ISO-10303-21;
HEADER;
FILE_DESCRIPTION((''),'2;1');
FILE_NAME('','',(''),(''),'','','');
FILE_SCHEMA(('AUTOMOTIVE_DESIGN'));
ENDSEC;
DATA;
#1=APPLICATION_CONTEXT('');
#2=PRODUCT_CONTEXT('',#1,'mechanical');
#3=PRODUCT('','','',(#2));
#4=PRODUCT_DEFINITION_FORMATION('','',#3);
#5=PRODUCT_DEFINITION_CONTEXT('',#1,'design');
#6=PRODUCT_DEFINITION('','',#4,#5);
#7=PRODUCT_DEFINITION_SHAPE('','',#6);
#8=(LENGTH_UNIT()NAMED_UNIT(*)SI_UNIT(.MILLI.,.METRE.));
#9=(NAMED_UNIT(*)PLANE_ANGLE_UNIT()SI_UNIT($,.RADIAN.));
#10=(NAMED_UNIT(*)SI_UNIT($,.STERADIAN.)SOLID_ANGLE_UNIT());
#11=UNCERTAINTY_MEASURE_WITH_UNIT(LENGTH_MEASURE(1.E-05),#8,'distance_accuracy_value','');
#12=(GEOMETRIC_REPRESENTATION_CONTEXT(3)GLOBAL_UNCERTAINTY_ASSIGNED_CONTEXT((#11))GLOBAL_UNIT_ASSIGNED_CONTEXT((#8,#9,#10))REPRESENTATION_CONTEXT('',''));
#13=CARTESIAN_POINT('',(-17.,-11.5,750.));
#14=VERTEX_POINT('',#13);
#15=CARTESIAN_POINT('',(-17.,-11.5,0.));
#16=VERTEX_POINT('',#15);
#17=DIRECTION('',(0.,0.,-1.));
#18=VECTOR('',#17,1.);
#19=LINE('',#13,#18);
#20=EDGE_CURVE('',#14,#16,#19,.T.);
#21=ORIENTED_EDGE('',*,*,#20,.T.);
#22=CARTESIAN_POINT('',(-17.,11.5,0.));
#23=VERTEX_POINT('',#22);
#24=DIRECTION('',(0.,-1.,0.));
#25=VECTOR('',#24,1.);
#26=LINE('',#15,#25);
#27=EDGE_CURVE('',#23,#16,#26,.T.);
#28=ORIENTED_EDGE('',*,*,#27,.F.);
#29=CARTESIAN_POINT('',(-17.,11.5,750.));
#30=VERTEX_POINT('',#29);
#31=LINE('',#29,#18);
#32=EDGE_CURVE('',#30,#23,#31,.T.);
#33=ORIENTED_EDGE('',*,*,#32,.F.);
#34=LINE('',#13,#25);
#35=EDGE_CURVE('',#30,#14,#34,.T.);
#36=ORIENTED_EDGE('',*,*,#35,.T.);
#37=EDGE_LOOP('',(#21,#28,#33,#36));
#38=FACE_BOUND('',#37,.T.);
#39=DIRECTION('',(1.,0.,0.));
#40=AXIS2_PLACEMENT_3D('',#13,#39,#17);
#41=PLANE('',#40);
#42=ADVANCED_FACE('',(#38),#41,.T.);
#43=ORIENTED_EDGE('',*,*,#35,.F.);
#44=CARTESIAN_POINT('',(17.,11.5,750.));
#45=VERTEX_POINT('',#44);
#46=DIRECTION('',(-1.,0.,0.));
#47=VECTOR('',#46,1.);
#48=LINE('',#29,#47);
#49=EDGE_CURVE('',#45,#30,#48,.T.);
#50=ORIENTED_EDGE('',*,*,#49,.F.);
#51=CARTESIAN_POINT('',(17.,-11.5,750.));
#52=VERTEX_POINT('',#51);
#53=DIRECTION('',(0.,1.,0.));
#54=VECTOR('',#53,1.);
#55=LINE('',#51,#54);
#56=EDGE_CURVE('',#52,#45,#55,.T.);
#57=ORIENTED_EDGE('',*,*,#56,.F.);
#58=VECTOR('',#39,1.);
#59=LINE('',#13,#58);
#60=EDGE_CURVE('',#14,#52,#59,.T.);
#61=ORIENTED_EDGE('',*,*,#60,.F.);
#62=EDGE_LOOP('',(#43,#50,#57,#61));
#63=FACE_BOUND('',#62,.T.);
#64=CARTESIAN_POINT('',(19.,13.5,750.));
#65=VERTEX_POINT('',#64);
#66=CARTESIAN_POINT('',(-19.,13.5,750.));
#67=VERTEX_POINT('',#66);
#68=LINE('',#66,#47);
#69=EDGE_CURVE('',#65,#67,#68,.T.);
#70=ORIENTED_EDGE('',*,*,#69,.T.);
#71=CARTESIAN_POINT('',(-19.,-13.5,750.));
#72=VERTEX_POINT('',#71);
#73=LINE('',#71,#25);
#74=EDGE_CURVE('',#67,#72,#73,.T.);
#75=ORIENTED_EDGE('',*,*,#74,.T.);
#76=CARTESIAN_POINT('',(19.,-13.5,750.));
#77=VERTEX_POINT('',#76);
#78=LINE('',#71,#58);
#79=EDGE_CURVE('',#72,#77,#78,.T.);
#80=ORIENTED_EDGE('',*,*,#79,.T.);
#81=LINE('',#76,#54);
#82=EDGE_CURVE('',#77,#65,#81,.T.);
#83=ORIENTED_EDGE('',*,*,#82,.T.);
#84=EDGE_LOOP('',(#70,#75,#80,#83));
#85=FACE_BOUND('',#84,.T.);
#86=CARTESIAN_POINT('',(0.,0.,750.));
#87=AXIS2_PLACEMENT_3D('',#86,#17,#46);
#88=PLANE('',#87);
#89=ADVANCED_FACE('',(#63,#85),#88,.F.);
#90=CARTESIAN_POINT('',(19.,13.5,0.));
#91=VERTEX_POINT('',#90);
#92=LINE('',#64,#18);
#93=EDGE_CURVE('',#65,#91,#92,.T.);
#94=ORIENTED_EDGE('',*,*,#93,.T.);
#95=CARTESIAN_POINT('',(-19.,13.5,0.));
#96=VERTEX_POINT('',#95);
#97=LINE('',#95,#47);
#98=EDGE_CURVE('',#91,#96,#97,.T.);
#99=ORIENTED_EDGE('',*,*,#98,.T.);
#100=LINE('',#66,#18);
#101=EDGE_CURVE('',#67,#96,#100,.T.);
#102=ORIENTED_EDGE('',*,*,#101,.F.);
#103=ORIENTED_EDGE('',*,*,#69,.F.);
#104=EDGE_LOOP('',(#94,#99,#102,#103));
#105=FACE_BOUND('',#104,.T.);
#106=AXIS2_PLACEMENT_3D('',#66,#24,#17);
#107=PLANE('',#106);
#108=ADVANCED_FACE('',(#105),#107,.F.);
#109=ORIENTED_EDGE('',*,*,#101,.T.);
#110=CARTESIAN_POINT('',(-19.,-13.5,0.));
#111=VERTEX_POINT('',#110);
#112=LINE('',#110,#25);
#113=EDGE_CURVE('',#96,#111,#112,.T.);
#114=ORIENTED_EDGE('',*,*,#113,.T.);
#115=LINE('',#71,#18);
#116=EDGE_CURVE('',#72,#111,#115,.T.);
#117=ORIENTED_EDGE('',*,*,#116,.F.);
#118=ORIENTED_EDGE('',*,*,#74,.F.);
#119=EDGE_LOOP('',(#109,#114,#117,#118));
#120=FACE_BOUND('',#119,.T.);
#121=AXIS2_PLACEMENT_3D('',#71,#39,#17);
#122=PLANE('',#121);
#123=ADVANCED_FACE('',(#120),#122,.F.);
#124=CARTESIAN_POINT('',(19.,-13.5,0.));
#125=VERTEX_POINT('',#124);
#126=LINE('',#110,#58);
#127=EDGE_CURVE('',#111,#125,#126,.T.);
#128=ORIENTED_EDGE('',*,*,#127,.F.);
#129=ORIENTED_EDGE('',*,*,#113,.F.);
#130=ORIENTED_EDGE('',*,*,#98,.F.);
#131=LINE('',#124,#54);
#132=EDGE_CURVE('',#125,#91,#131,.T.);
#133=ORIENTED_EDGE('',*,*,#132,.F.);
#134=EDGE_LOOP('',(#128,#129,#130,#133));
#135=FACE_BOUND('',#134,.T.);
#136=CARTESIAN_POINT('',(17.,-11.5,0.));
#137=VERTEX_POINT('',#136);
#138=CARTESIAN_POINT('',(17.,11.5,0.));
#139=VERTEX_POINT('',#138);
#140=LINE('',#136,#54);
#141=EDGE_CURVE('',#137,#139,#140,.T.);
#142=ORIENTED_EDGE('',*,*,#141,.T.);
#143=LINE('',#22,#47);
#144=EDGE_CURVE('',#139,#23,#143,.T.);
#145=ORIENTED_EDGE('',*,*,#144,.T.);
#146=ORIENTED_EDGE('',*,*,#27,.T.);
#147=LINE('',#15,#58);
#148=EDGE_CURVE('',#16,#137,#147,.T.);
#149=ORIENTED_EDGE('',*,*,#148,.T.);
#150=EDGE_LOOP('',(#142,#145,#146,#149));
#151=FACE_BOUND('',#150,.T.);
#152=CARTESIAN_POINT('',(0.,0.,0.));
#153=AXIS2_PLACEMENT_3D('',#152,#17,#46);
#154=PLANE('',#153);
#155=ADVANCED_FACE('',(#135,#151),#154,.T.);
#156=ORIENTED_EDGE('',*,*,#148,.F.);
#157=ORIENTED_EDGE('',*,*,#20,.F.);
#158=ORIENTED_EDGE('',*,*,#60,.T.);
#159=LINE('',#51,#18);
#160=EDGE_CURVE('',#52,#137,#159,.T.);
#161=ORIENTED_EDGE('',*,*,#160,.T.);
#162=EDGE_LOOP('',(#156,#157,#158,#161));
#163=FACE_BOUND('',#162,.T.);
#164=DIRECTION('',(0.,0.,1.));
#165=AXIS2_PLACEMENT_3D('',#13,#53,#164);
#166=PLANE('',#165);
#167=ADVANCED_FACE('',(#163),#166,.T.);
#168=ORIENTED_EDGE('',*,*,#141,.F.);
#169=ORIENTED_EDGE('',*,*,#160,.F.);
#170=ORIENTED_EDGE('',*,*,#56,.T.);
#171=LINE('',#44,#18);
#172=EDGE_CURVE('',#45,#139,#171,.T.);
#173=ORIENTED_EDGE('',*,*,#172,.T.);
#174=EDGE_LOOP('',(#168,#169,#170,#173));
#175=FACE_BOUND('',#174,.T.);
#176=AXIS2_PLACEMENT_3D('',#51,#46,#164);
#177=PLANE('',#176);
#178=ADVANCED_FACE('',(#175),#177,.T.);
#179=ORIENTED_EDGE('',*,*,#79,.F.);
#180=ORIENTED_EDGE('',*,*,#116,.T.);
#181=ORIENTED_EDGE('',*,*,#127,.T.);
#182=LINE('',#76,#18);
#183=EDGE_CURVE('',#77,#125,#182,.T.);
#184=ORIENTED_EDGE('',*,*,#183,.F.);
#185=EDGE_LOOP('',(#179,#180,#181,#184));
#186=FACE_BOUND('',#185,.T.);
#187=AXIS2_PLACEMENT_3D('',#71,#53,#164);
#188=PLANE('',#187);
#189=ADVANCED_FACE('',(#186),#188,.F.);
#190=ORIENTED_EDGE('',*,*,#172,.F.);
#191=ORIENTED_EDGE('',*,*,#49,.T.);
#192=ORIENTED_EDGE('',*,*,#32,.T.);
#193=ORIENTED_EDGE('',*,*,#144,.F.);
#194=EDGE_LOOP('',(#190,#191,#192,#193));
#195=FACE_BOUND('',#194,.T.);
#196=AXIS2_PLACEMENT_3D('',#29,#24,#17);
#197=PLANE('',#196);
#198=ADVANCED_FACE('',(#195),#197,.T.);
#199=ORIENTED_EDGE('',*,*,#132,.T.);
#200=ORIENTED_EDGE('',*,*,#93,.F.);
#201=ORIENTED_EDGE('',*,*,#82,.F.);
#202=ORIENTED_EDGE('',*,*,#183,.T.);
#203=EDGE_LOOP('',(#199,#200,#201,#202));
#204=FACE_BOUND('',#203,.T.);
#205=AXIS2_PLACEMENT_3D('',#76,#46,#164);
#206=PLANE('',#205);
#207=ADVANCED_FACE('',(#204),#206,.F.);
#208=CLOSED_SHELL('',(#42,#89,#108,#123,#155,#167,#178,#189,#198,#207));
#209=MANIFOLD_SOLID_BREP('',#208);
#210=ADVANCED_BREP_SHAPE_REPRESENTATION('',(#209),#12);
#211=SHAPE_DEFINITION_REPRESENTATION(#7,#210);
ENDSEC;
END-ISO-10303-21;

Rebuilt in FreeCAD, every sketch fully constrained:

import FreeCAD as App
import Part
import Sketcher

doc = App.newDocument("Part")
body = doc.addObject("PartDesign::Body", "Body")

sketch1 = body.newObject("Sketcher::SketchObject", "Sketch")
sketch1.AttachmentSupport = (doc.getObject("XY_Plane"), [""])
sketch1.MapMode = "FlatFace"
sketch1.addGeometry([
    Part.LineSegment(App.Vector(-19, 14, 0), App.Vector(-19, -14, 0)),
    Part.LineSegment(App.Vector(-19, -14, 0), App.Vector(19, -14, 0)),
    Part.LineSegment(App.Vector(19, -14, 0), App.Vector(19, 14, 0)),
    Part.LineSegment(App.Vector(19, 14, 0), App.Vector(-19, 14, 0)),
    Part.LineSegment(App.Vector(17, -12, 0), App.Vector(-17, -12, 0)),
    Part.LineSegment(App.Vector(-17, -12, 0), App.Vector(-17, 12, 0)),
    Part.LineSegment(App.Vector(-17, 12, 0), App.Vector(17, 12, 0)),
    Part.LineSegment(App.Vector(17, 12, 0), App.Vector(17, -12, 0)),
], False)
sketch1.addConstraint([
    Sketcher.Constraint("Coincident", 0, 2, 1, 1),
    Sketcher.Constraint("Coincident", 1, 2, 2, 1),
    Sketcher.Constraint("Coincident", 2, 2, 3, 1),
    Sketcher.Constraint("Coincident", 3, 2, 0, 1),
    Sketcher.Constraint("Coincident", 4, 2, 5, 1),
    Sketcher.Constraint("Coincident", 5, 2, 6, 1),
    Sketcher.Constraint("Coincident", 6, 2, 7, 1),
    Sketcher.Constraint("Coincident", 7, 2, 4, 1),
    Sketcher.Constraint("Vertical", 0),
    Sketcher.Constraint("Horizontal", 1),
    Sketcher.Constraint("Vertical", 2),
    Sketcher.Constraint("Horizontal", 3),
    Sketcher.Constraint("Horizontal", 4),
    Sketcher.Constraint("Vertical", 5),
    Sketcher.Constraint("Horizontal", 6),
    Sketcher.Constraint("Vertical", 7),
    Sketcher.Constraint("Symmetric", 0, 2, 2, 2, -1, 1),
    Sketcher.Constraint("Symmetric", 4, 2, 6, 2, -1, 1),
    Sketcher.Constraint("DistanceX", 1, 1, 1, 2, 38.0),
    Sketcher.Constraint("DistanceX", 4, 2, 4, 1, 34.0),
    Sketcher.Constraint("DistanceY", 0, 2, 0, 1, 27.0),
    Sketcher.Constraint("DistanceY", 5, 1, 5, 2, 23.0),
])
pad1 = body.newObject("PartDesign::Pad", "Pad")
pad1.Profile = sketch1
pad1.Length = 750

doc.recompute()
